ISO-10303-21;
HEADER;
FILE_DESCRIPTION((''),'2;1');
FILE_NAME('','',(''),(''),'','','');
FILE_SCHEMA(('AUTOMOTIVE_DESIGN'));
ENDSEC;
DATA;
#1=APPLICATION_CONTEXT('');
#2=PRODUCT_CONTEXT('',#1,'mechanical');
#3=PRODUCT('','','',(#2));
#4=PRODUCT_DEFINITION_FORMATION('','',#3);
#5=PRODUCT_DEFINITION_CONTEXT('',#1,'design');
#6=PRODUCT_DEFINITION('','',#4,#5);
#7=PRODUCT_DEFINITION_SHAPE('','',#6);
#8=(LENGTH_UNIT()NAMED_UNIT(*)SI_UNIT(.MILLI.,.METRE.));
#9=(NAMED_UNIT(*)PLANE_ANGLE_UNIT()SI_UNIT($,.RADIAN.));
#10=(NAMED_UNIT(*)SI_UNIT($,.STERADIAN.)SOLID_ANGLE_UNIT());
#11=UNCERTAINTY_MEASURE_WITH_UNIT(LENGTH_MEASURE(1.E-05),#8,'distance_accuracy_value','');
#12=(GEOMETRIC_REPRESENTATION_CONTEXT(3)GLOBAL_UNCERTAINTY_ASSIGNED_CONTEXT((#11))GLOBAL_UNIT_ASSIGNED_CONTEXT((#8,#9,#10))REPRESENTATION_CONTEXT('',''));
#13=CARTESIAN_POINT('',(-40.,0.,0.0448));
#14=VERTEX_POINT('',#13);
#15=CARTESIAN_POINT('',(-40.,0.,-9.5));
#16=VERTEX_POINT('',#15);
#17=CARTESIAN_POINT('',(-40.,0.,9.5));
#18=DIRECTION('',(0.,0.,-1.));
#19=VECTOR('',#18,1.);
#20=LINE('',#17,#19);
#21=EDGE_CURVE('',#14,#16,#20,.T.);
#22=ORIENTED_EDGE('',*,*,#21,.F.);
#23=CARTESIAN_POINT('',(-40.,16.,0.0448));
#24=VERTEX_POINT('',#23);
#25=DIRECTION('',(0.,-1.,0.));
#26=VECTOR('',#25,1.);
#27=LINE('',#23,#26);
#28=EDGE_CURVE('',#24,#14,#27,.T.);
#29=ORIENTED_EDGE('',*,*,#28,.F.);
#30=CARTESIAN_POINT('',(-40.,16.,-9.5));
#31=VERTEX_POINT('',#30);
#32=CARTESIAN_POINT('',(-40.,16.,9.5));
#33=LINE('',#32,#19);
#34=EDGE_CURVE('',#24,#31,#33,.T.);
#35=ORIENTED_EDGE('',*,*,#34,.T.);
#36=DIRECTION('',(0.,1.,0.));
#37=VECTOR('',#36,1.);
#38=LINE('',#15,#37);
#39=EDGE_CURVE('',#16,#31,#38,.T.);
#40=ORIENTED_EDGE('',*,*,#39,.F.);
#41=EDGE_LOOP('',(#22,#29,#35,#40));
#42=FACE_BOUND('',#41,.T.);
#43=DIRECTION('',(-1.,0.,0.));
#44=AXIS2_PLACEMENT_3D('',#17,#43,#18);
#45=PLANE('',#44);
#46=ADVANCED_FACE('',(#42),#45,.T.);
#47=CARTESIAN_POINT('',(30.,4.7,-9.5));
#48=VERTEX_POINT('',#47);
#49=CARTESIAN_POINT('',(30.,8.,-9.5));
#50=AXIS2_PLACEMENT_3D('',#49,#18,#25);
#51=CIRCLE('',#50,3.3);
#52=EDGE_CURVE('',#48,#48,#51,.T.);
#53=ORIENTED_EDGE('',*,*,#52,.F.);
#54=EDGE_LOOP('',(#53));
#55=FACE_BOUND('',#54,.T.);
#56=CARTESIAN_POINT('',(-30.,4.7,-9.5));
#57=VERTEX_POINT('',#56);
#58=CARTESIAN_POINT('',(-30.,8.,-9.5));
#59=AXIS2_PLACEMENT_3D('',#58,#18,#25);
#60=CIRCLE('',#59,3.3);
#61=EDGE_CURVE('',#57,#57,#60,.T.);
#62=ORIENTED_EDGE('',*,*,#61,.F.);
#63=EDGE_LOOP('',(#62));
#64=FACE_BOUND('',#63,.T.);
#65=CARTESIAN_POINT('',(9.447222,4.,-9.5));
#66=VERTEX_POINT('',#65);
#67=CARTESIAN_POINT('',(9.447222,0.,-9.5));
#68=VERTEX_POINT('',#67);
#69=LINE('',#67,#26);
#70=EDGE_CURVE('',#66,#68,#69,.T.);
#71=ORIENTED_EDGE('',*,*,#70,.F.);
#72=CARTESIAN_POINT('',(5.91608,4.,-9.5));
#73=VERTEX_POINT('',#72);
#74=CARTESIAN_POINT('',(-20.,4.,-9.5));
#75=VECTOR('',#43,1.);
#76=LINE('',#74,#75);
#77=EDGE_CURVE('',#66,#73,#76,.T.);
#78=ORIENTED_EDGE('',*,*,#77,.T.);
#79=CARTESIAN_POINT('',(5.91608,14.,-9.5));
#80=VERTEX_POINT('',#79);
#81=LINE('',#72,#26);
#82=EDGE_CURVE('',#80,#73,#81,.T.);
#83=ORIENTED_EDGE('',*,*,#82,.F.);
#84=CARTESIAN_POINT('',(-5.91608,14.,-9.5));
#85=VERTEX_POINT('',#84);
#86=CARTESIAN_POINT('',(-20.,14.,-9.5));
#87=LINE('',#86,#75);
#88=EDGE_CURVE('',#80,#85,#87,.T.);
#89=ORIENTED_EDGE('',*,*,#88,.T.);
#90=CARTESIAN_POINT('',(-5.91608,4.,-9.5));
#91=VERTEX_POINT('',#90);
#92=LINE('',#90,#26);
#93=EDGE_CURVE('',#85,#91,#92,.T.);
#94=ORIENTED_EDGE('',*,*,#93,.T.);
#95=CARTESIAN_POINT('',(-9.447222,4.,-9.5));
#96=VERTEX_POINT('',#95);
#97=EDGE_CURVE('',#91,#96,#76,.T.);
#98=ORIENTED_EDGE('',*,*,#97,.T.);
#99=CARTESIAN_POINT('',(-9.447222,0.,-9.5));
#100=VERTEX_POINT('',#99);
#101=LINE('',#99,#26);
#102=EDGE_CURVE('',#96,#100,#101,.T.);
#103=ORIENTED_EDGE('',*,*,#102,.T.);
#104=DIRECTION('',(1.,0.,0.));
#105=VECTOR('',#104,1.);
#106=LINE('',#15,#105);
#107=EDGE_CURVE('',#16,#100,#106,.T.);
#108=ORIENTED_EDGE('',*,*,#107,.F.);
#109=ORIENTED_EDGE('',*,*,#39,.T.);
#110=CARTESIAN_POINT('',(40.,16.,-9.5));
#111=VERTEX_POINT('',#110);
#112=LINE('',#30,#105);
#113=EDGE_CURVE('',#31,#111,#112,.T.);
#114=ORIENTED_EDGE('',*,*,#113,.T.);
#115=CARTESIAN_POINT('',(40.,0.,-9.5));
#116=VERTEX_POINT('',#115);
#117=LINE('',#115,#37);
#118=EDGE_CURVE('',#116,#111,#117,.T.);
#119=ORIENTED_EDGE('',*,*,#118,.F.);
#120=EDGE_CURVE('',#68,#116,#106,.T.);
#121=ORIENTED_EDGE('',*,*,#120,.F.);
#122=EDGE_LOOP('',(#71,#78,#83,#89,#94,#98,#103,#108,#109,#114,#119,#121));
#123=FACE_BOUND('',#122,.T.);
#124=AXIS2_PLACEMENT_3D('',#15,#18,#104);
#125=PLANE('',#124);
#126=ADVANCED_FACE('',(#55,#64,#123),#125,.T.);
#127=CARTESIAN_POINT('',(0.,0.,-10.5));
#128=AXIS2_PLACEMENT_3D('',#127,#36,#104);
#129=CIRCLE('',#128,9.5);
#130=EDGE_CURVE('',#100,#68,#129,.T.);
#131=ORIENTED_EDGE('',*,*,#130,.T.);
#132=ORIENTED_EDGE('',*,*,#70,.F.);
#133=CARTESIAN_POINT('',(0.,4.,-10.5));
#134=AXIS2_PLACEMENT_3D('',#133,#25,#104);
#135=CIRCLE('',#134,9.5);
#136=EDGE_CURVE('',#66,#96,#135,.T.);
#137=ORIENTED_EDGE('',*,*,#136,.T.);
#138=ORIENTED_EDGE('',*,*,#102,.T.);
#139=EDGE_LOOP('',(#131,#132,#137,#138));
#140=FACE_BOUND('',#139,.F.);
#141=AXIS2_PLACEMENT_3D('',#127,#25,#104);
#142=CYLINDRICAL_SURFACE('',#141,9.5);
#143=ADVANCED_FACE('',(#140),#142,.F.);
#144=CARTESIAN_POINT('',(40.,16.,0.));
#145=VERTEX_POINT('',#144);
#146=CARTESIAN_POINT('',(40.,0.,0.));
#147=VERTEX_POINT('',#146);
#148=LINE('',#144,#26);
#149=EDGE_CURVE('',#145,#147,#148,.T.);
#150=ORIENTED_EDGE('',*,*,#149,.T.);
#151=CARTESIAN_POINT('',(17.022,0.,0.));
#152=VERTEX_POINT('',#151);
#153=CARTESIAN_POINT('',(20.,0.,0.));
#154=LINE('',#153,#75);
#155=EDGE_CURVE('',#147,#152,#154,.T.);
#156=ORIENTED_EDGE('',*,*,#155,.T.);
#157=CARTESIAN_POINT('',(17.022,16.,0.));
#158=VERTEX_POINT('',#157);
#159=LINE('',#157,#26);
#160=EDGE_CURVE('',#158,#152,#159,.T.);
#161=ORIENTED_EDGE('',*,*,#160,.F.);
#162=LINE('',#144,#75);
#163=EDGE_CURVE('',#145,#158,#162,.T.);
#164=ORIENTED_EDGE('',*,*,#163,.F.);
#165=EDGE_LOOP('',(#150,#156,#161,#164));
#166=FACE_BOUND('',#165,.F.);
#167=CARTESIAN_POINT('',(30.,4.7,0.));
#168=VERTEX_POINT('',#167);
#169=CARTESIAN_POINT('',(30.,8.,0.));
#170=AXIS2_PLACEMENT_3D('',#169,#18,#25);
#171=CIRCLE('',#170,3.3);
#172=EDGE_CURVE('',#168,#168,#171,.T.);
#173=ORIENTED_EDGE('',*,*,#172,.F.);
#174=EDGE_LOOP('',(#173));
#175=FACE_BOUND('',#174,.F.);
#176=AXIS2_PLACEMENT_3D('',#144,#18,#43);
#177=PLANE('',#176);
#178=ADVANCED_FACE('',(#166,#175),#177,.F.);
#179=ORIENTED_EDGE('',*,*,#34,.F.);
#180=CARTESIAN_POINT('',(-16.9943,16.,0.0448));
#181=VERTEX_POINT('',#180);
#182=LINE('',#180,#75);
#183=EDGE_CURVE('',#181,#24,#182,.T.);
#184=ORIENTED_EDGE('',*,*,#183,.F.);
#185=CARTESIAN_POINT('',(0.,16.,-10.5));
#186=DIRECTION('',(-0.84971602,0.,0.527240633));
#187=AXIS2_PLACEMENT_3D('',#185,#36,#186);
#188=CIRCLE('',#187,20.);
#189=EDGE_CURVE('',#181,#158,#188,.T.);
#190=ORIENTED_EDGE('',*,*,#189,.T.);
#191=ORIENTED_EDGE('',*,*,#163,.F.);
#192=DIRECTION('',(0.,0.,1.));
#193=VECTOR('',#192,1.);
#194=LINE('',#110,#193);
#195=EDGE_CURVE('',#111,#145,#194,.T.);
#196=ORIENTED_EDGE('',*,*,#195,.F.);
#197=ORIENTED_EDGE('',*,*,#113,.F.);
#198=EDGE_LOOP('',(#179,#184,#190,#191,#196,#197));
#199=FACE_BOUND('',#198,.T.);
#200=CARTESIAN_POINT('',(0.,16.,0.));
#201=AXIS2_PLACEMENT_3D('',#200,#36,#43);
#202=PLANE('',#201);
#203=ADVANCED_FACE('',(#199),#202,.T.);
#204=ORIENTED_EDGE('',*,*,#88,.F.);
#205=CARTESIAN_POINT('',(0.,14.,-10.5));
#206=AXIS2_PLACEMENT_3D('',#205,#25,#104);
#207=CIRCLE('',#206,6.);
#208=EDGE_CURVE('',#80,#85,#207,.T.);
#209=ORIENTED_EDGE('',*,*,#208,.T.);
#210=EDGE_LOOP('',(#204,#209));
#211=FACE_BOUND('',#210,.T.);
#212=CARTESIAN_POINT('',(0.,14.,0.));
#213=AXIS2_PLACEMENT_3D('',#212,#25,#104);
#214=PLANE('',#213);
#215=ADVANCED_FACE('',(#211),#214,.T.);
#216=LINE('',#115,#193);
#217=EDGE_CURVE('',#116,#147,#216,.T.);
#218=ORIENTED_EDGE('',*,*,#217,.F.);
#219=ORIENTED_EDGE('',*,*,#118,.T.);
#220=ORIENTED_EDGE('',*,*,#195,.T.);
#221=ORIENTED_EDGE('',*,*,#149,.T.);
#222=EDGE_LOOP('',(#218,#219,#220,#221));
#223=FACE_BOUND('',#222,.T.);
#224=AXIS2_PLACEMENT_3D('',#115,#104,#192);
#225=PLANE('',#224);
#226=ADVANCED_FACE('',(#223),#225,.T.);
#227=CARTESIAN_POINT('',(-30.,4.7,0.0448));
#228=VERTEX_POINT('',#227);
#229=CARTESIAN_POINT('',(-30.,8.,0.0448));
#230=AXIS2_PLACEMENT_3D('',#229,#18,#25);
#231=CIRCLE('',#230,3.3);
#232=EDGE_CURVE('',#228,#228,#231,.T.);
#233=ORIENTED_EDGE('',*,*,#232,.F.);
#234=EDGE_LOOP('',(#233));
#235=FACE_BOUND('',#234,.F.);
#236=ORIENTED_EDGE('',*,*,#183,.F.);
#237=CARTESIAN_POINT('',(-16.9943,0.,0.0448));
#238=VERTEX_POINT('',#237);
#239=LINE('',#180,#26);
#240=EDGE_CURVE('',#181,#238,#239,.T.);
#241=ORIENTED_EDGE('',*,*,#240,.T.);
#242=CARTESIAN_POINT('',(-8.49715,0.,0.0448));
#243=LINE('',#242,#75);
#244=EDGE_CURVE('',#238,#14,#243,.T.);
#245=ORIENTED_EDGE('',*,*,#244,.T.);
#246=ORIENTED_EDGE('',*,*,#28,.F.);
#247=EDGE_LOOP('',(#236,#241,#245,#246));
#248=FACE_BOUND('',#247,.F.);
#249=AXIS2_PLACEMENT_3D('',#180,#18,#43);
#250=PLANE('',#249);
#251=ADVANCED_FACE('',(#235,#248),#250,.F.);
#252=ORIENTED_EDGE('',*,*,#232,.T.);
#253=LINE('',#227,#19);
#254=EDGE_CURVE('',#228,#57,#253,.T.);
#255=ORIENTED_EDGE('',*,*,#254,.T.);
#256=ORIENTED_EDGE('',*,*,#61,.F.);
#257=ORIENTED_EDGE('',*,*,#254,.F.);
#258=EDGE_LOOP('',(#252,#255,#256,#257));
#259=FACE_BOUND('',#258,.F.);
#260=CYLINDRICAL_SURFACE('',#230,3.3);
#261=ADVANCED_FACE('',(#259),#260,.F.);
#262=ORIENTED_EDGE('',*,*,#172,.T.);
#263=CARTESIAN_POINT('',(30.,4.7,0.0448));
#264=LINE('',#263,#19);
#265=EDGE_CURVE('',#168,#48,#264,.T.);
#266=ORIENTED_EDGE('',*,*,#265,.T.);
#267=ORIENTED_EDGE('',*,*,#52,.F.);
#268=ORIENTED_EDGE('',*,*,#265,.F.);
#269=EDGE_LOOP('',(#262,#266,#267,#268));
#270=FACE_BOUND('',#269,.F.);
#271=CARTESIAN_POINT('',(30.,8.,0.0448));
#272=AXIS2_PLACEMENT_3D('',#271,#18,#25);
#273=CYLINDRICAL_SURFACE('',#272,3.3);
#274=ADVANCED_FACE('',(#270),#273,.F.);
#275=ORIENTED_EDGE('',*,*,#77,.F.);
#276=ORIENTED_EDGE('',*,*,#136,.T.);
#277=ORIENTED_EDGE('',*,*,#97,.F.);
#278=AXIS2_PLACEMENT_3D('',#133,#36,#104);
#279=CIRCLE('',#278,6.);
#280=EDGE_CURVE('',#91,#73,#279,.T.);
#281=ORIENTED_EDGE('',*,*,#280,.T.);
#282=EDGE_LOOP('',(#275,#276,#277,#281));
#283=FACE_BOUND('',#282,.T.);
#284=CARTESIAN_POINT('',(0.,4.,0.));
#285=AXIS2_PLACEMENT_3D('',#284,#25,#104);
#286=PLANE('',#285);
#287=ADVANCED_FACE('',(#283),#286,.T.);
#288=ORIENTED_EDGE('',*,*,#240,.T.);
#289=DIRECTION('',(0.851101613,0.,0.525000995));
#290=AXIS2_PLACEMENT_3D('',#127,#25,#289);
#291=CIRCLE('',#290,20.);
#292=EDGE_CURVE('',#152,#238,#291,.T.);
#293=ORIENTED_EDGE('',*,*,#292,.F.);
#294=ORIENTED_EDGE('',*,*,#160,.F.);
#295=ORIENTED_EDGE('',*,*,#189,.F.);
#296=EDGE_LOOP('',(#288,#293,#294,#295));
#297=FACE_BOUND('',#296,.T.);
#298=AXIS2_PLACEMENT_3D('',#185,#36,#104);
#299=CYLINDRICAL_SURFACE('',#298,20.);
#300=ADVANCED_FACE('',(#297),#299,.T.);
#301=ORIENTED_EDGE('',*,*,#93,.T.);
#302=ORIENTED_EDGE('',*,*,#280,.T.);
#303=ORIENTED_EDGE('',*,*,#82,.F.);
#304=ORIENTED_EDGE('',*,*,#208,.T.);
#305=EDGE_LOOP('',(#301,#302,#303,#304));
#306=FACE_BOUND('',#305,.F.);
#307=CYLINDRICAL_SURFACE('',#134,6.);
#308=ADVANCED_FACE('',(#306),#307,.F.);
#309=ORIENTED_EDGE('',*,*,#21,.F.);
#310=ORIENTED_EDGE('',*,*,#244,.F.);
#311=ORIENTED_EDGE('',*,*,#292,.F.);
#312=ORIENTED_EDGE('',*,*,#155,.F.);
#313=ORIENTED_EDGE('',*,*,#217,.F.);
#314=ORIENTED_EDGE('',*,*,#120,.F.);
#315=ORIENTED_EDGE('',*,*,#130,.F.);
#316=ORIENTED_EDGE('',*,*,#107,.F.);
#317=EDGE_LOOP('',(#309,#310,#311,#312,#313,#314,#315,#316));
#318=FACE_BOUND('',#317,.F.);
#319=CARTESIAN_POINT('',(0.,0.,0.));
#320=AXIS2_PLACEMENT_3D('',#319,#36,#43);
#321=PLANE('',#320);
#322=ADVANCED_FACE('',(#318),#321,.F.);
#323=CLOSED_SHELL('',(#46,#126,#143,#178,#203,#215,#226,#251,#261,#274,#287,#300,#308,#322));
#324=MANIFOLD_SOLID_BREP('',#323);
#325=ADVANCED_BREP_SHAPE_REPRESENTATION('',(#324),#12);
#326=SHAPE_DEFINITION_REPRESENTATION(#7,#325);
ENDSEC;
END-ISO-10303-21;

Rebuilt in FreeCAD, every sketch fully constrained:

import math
import FreeCAD as App
import Part
import Sketcher

V = App.Vector
Q = App.Units.Quantity

doc = App.newDocument("Part")
params = doc.addObject("Spreadsheet::Sheet", "Params")
for row, (alias, value) in enumerate([
    ("sketch1_width", "80 mm"),
    ("sketch1_height", "19 mm"),
    ("pad1_length", "16 mm"),
    ("sketch2_diameter", "19 mm"),
    ("pocket1_length", "4 mm"),
    ("sketch3_diameter", "12 mm"),
    ("pocket2_length", "10 mm"),
    ("sketch4_radius", "20 mm"),
    ("sketch4_width", "40 mm"),
    ("sketch4_height", "9.5 mm"),
    ("pocket3_length", "30 mm"),
    ("sketch5_diameter", "6.6 mm"),
    ("hole_diameter", "6.6 mm"),
], start=1):
    params.set(f"A{row}", alias)
    params.set(f"B{row}", "=" + value)
    params.setAlias(f"B{row}", alias)

body = doc.addObject("PartDesign::Body", "Body")

# Sketch on XZ plane
sketch1 = body.newObject("Sketcher::SketchObject", "Sketch")
sketch1.AttachmentSupport = (doc.getObject("XZ_Plane"), [""])
sketch1.MapMode = "FlatFace"
sketch1.addGeometry([
    Part.LineSegment(V(40, -9.5, 0), V(-40, -9.5, 0)),
    Part.LineSegment(V(-40, -9.5, 0), V(-40, 9.5, 0)),
    Part.LineSegment(V(-40, 9.5, 0), V(40, 9.5, 0)),
    Part.LineSegment(V(40, 9.5, 0), V(40, -9.5, 0)),
], False)
sketch1.addConstraint([
    Sketcher.Constraint("Coincident", 0, 2, 1, 1),
    Sketcher.Constraint("Coincident", 1, 2, 2, 1),
    Sketcher.Constraint("Coincident", 2, 2, 3, 1),
    Sketcher.Constraint("Coincident", 3, 2, 0, 1),
    Sketcher.Constraint("Horizontal", 0),
    Sketcher.Constraint("Vertical", 1),
    Sketcher.Constraint("Horizontal", 2),
    Sketcher.Constraint("Vertical", 3),
    Sketcher.Constraint("Symmetric", 0, 2, 2, 2, -1, 1),
    Sketcher.Constraint("DistanceX", 0, 2, 0, 1, Q("80 mm")),
    Sketcher.Constraint("DistanceY", 1, 1, 1, 2, Q("19 mm")),
])
sketch1.setExpression("Constraints[9]", "Params.sketch1_width")
sketch1.setExpression("Constraints[10]", "Params.sketch1_height")
pad1 = body.newObject("PartDesign::Pad", "Pad")
pad1.Profile = sketch1
pad1.setExpression("Length", "Params.pad1_length")
pad1.Reversed = True

# Sketch on XZ plane
sketch2 = body.newObject("Sketcher::SketchObject", "Sketch001")
sketch2.AttachmentSupport = (doc.getObject("XZ_Plane"), [""])
sketch2.MapMode = "FlatFace"
sketch2.addGeometry(Part.Circle(V(0, -10.5, 0), V(0, 0, 1), 9.5), False)
sketch2.addConstraint([
    Sketcher.Constraint("PointOnObject", 0, 3, -2),
    Sketcher.Constraint("Diameter", 0, Q("19 mm")),
    Sketcher.Constraint("DistanceY", 0, 3, -1, 1, Q("10.5 mm")),
])
sketch2.setExpression("Constraints[1]", "Params.sketch2_diameter")
pocket1 = body.newObject("PartDesign::Pocket", "Pocket")
pocket1.Profile = sketch2
pocket1.setExpression("Length", "Params.pocket1_length")

# Sketch on XZ plane
sketch3 = body.newObject("Sketcher::SketchObject", "Sketch002")
sketch3.AttachmentSupport = (doc.getObject("XZ_Plane"), [""])
sketch3.MapMode = "FlatFace"
sketch3.AttachmentOffset = App.Placement(V(0, 0, -4), App.Rotation())
sketch3.addGeometry(Part.Circle(V(0, -10.5, 0), V(0, 0, 1), 6), False)
sketch3.addConstraint([
    Sketcher.Constraint("PointOnObject", 0, 3, -2),
    Sketcher.Constraint("Diameter", 0, Q("12 mm")),
    Sketcher.Constraint("DistanceY", 0, 3, -1, 1, Q("10.5 mm")),
])
sketch3.setExpression("Constraints[1]", "Params.sketch3_diameter")
pocket2 = body.newObject("PartDesign::Pocket", "Pocket001")
pocket2.Profile = sketch3
pocket2.setExpression("Length", "Params.pocket2_length")

# Sketch on XZ plane
sketch4 = body.newObject("Sketcher::SketchObject", "Sketch003")
sketch4.AttachmentSupport = (doc.getObject("XZ_Plane"), [""])
sketch4.MapMode = "FlatFace"
sketch4.AttachmentOffset = App.Placement(V(0, 0, -16), App.Rotation())
sketch4.addGeometry([
    Part.LineSegment(V(40, 9.5, 0), V(40, 0, 0)),  # 0
    Part.LineSegment(V(40, 0, 0), V(17.022, 0, 0)),  # 1
    Part.ArcOfCircle(Part.Circle(V(0, -10.5, 0), V(0, 0, 1), 20), math.radians(31.66831), math.radians(90)),  # 2
    Part.LineSegment(V(0, 9.5, 0), V(40, 9.5, 0)),  # 3
    Part.LineSegment(V(-40, 9.5, 0), V(0, 9.5, 0)),  # 4
    Part.ArcOfCircle(Part.Circle(V(0, -10.5, 0), V(0, 0, 1), 20), math.radians(90), math.radians(148.180796)),  # 5
    Part.LineSegment(V(-16.9943, 0.0448, 0), V(-40, 0.0448, 0)),  # 6
    Part.LineSegment(V(-40, 0.0448, 0), V(-40, 9.5, 0)),  # 7
], False)
sketch4.addConstraint([
    Sketcher.Constraint("Coincident", 0, 2, 1, 1),
    Sketcher.Constraint("Coincident", 1, 2, 2, 1),
    Sketcher.Constraint("Tangent", 2, 2, 3, 1),
    Sketcher.Constraint("Coincident", 3, 2, 0, 1),
    Sketcher.Constraint("Tangent", 4, 2, 5, 1),
    Sketcher.Constraint("Coincident", 5, 2, 6, 1),
    Sketcher.Constraint("Coincident", 6, 2, 7, 1),
    Sketcher.Constraint("Coincident", 7, 2, 4, 1),
    Sketcher.Constraint("Vertical", 0),
    Sketcher.Constraint("Horizontal", 1),
    Sketcher.Constraint("Horizontal", 3),
    Sketcher.Constraint("Horizontal", 4),
    Sketcher.Constraint("Horizontal", 6),
    Sketcher.Constraint("Vertical", 7),
    Sketcher.Constraint("Coincident", 5, 3, 2, 3),
    Sketcher.Constraint("Equal", 2, 5),
    Sketcher.Constraint("PointOnObject", 2, 3, -2),
    Sketcher.Constraint("PointOnObject", 0, 2, -1),
    Sketcher.Constraint("Equal", 3, 4),
    Sketcher.Constraint("Radius", 2, Q("20 mm")),
    Sketcher.Constraint("DistanceX", 3, 1, 3, 2, Q("40 mm")),
    Sketcher.Constraint("DistanceY", 0, 2, 0, 1, Q("9.5 mm")),
    Sketcher.Constraint("DistanceX", 6, 2, 6, 1, Q("23.0057 mm")),
])
sketch4.setExpression("Constraints[19]", "Params.sketch4_radius")
sketch4.setExpression("Constraints[20]", "Params.sketch4_width")
sketch4.setExpression("Constraints[21]", "Params.sketch4_height")
pocket3 = body.newObject("PartDesign::Pocket", "Pocket002")
pocket3.Profile = sketch4
pocket3.setExpression("Length", "Params.pocket3_length")
pocket3.Reversed = True

# Sketch on XY plane
sketch5 = body.newObject("Sketcher::SketchObject", "Sketch004")
sketch5.AttachmentSupport = (doc.getObject("XY_Plane"), [""])
sketch5.MapMode = "FlatFace"
sketch5.AttachmentOffset = App.Placement(V(0, 0, 0.0448), App.Rotation())
sketch5.addGeometry([
    Part.Circle(V(30, 8, 0), V(0, 0, 1), 3.3),
    Part.Circle(V(-30, 8, 0), V(0, 0, 1), 3.3),
], False)
sketch5.addConstraint([
    Sketcher.Constraint("Equal", 0, 1),
    Sketcher.Constraint("Symmetric", 0, 3, 1, 3, -2),
    Sketcher.Constraint("Diameter", 0, Q("6.6 mm")),
    Sketcher.Constraint("DistanceX", -1, 1, 0, 3, Q("30 mm")),
    Sketcher.Constraint("DistanceY", -1, 1, 0, 3, Q("8 mm")),
])
sketch5.setExpression("Constraints[2]", "Params.sketch5_diameter")
doc.recompute()
hole = body.newObject("PartDesign::Hole", "Hole")
hole.Profile = sketch5
hole.ThreadType = "None"
hole.setExpression("Diameter", "Params.hole_diameter")
hole.DepthType = "ThroughAll"

doc.recompute()
